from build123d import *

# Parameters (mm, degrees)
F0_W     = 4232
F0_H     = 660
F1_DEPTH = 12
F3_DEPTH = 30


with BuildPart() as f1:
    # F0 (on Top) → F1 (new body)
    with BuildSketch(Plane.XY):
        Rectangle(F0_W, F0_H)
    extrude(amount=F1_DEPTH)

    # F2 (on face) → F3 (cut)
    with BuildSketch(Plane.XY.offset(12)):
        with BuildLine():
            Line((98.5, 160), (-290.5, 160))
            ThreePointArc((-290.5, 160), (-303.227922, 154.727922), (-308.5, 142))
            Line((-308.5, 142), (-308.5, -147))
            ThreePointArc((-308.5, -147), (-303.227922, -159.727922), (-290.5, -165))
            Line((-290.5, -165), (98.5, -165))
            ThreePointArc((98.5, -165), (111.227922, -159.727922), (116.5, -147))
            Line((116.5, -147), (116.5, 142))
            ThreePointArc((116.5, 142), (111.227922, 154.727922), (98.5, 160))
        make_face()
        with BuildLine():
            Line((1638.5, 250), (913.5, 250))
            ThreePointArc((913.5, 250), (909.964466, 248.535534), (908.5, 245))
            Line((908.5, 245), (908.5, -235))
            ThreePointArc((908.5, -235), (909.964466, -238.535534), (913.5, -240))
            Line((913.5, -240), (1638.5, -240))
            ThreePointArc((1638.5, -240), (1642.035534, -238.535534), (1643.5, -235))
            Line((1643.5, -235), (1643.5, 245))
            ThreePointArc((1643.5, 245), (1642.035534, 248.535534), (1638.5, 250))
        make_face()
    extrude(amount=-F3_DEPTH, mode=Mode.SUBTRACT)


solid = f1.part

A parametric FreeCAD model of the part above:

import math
import FreeCAD as App
import Part
import Sketcher
Q = App.Units.Quantity


def add_polygon(sketch, points):
    """Adds a closed chain of lines whose ends are joined by coincident constraints."""
    first, n = sketch.GeometryCount, len(points)
    for a, b in zip(points, points[1:] + points[:1]):
        sketch.addGeometry(Part.LineSegment(App.Vector(*a, 0), App.Vector(*b, 0)), False)
    for i in range(n):
        sketch.addConstraint(Sketcher.Constraint("Coincident", first + i, 2, first + (i + 1) % n, 1))

doc = App.newDocument("Part")
params = doc.addObject("Spreadsheet::Sheet", "Params")
for row, (alias, value) in enumerate([
    ("sketch1_width", "4232 mm"),
    ("sketch1_height", "660 mm"),
    ("pad1_length", "12 mm"),
    ("sketch2_radius", "18 mm"),
    ("sketch2_radius2", "5 mm"),
    ("sketch2_width", "389 mm"),
    ("sketch2_width2", "725 mm"),
    ("sketch2_height", "289 mm"),
    ("pocket1_length", "30 mm"),
], start=1):
    params.set(f"A{row}", alias)
    params.set(f"B{row}", "=" + value)
    params.setAlias(f"B{row}", alias)

body = doc.addObject("PartDesign::Body", "Body")

# Sketch on XY plane
sketch1 = body.newObject("Sketcher::SketchObject", "Sketch")
sketch1.AttachmentSupport = (doc.getObject("XY_Plane"), [""])
sketch1.MapMode = "FlatFace"
add_polygon(sketch1, [(-2116, 330), (-2116, -330), (2116, -330), (2116, 330)])  # lines 0-3
sketch1.addConstraint([
    Sketcher.Constraint("Vertical", 0),
    Sketcher.Constraint("Horizontal", 1),
    Sketcher.Constraint("Vertical", 2),
    Sketcher.Constraint("Horizontal", 3),
    Sketcher.Constraint("Symmetric", 0, 2, 2, 2, -1, 1),
    Sketcher.Constraint("DistanceX", 1, 1, 1, 2, Q("4232 mm")),
    Sketcher.Constraint("DistanceY", 0, 2, 0, 1, Q("660 mm")),
])
sketch1.setExpression("Constraints[9]", "Params.sketch1_width")
sketch1.setExpression("Constraints[10]", "Params.sketch1_height")
pad1 = body.newObject("PartDesign::Pad", "Pad")
pad1.Profile = sketch1
pad1.setExpression("Length", "Params.pad1_length")

# Sketch on XY plane
sketch2 = body.newObject("Sketcher::SketchObject", "Sketch001")
sketch2.AttachmentSupport = (doc.getObject("XY_Plane"), [""])
sketch2.MapMode = "FlatFace"
sketch2.AttachmentOffset = App.Placement(App.Vector(0, 0, 12), App.Rotation())
sketch2.addGeometry([
    Part.LineSegment(App.Vector(98.5, 160, 0), App.Vector(-290.5, 160, 0)),  # 0
    Part.ArcOfCircle(Part.Circle(App.Vector(-290.5, 142, 0), App.Vector(0, 0, 1), 18), math.radians(90), math.radians(180)),  # 1
    Part.LineSegment(App.Vector(-308.5, 142, 0), App.Vector(-308.5, -147, 0)),  # 2
    Part.ArcOfCircle(Part.Circle(App.Vector(-290.5, -147, 0), App.Vector(0, 0, 1), 18), math.radians(-180), math.radians(-90)),  # 3
    Part.LineSegment(App.Vector(-290.5, -165, 0), App.Vector(98.5, -165, 0)),  # 4
    Part.ArcOfCircle(Part.Circle(App.Vector(98.5, -147, 0), App.Vector(0, 0, 1), 18), math.radians(-90), math.radians(0)),  # 5
    Part.LineSegment(App.Vector(116.5, -147, 0), App.Vector(116.5, 142, 0)),  # 6
    Part.ArcOfCircle(Part.Circle(App.Vector(98.5, 142, 0), App.Vector(0, 0, 1), 18), math.radians(0), math.radians(90)),  # 7
    Part.LineSegment(App.Vector(1638.5, 250, 0), App.Vector(913.5, 250, 0)),  # 8
    Part.ArcOfCircle(Part.Circle(App.Vector(913.5, 245, 0), App.Vector(0, 0, 1), 5), math.radians(90), math.radians(180)),  # 9
    Part.LineSegment(App.Vector(908.5, 245, 0), App.Vector(908.5, -235, 0)),  # 10
    Part.ArcOfCircle(Part.Circle(App.Vector(913.5, -235, 0), App.Vector(0, 0, 1), 5), math.radians(180), math.radians(270)),  # 11
    Part.LineSegment(App.Vector(913.5, -240, 0), App.Vector(1638.5, -240, 0)),  # 12
    Part.ArcOfCircle(Part.Circle(App.Vector(1638.5, -235, 0), App.Vector(0, 0, 1), 5), math.radians(-90), math.radians(0)),  # 13
    Part.LineSegment(App.Vector(1643.5, -235, 0), App.Vector(1643.5, 245, 0)),  # 14
    Part.ArcOfCircle(Part.Circle(App.Vector(1638.5, 245, 0), App.Vector(0, 0, 1), 5), math.radians(0), math.radians(90)),  # 15
], False)
sketch2.addConstraint([
    Sketcher.Constraint("Tangent", 0, 2, 1, 1),
    Sketcher.Constraint("Tangent", 1, 2, 2, 1),
    Sketcher.Constraint("Tangent", 2, 2, 3, 1),
    Sketcher.Constraint("Tangent", 3, 2, 4, 1),
    Sketcher.Constraint("Tangent", 4, 2, 5, 1),
    Sketcher.Constraint("Tangent", 5, 2, 6, 1),
    Sketcher.Constraint("Tangent", 6, 2, 7, 1),
    Sketcher.Constraint("Tangent", 7, 2, 0, 1),
    Sketcher.Constraint("Tangent", 8, 2, 9, 1),
    Sketcher.Constraint("Tangent", 9, 2, 10, 1),
    Sketcher.Constraint("Tangent", 10, 2, 11, 1),
    Sketcher.Constraint("Tangent", 11, 2, 12, 1),
    Sketcher.Constraint("Tangent", 12, 2, 13, 1),
    Sketcher.Constraint("Tangent", 13, 2, 14, 1),
    Sketcher.Constraint("Tangent", 14, 2, 15, 1),
    Sketcher.Constraint("Tangent", 15, 2, 8, 1),
    Sketcher.Constraint("Horizontal", 0),
    Sketcher.Constraint("Vertical", 2),
    Sketcher.Constraint("Horizontal", 4),
    Sketcher.Constraint("Vertical", 6),
    Sketcher.Constraint("Horizontal", 8),
    Sketcher.Constraint("Vertical", 10),
    Sketcher.Constraint("Horizontal", 12),
    Sketcher.Constraint("Vertical", 14),
    Sketcher.Constraint("Equal", 1, 3),
    Sketcher.Constraint("Equal", 3, 5),
    Sketcher.Constraint("Equal", 5, 7),
    Sketcher.Constraint("Equal", 9, 11),
    Sketcher.Constraint("Equal", 11, 13),
    Sketcher.Constraint("Equal", 13, 15),
    Sketcher.Constraint("Radius", 1, Q("18 mm")),
    Sketcher.Constraint("Radius", 9, Q("5 mm")),
    Sketcher.Constraint("DistanceX", 0, 2, 0, 1, Q("389 mm")),
    Sketcher.Constraint("DistanceX", 8, 2, 8, 1, Q("725 mm")),
    Sketcher.Constraint("DistanceY", 2, 2, 2, 1, Q("289 mm")),
    Sketcher.Constraint("DistanceY", 10, 2, 10, 1, Q("480 mm")),
    Sketcher.Constraint("DistanceY", -1, 1, 1, 3, Q("142 mm")),
    Sketcher.Constraint("DistanceY", -1, 1, 9, 3, Q("245 mm")),
    Sketcher.Constraint("DistanceX", 7, 3, 9, 3, Q("815 mm")),
    Sketcher.Constraint("DistanceX", 1, 3, -1, 1, Q("290.5 mm")),
])
sketch2.setExpression("Constraints[30]", "Params.sketch2_radius")
sketch2.setExpression("Constraints[31]", "Params.sketch2_radius2")
sketch2.setExpression("Constraints[32]", "Params.sketch2_width")
sketch2.setExpression("Constraints[33]", "Params.sketch2_width2")
sketch2.setExpression("Constraints[34]", "Params.sketch2_height")
pocket1 = body.newObject("PartDesign::Pocket", "Pocket")
pocket1.Profile = sketch2
pocket1.setExpression("Length", "Params.pocket1_length")

doc.recompute()
